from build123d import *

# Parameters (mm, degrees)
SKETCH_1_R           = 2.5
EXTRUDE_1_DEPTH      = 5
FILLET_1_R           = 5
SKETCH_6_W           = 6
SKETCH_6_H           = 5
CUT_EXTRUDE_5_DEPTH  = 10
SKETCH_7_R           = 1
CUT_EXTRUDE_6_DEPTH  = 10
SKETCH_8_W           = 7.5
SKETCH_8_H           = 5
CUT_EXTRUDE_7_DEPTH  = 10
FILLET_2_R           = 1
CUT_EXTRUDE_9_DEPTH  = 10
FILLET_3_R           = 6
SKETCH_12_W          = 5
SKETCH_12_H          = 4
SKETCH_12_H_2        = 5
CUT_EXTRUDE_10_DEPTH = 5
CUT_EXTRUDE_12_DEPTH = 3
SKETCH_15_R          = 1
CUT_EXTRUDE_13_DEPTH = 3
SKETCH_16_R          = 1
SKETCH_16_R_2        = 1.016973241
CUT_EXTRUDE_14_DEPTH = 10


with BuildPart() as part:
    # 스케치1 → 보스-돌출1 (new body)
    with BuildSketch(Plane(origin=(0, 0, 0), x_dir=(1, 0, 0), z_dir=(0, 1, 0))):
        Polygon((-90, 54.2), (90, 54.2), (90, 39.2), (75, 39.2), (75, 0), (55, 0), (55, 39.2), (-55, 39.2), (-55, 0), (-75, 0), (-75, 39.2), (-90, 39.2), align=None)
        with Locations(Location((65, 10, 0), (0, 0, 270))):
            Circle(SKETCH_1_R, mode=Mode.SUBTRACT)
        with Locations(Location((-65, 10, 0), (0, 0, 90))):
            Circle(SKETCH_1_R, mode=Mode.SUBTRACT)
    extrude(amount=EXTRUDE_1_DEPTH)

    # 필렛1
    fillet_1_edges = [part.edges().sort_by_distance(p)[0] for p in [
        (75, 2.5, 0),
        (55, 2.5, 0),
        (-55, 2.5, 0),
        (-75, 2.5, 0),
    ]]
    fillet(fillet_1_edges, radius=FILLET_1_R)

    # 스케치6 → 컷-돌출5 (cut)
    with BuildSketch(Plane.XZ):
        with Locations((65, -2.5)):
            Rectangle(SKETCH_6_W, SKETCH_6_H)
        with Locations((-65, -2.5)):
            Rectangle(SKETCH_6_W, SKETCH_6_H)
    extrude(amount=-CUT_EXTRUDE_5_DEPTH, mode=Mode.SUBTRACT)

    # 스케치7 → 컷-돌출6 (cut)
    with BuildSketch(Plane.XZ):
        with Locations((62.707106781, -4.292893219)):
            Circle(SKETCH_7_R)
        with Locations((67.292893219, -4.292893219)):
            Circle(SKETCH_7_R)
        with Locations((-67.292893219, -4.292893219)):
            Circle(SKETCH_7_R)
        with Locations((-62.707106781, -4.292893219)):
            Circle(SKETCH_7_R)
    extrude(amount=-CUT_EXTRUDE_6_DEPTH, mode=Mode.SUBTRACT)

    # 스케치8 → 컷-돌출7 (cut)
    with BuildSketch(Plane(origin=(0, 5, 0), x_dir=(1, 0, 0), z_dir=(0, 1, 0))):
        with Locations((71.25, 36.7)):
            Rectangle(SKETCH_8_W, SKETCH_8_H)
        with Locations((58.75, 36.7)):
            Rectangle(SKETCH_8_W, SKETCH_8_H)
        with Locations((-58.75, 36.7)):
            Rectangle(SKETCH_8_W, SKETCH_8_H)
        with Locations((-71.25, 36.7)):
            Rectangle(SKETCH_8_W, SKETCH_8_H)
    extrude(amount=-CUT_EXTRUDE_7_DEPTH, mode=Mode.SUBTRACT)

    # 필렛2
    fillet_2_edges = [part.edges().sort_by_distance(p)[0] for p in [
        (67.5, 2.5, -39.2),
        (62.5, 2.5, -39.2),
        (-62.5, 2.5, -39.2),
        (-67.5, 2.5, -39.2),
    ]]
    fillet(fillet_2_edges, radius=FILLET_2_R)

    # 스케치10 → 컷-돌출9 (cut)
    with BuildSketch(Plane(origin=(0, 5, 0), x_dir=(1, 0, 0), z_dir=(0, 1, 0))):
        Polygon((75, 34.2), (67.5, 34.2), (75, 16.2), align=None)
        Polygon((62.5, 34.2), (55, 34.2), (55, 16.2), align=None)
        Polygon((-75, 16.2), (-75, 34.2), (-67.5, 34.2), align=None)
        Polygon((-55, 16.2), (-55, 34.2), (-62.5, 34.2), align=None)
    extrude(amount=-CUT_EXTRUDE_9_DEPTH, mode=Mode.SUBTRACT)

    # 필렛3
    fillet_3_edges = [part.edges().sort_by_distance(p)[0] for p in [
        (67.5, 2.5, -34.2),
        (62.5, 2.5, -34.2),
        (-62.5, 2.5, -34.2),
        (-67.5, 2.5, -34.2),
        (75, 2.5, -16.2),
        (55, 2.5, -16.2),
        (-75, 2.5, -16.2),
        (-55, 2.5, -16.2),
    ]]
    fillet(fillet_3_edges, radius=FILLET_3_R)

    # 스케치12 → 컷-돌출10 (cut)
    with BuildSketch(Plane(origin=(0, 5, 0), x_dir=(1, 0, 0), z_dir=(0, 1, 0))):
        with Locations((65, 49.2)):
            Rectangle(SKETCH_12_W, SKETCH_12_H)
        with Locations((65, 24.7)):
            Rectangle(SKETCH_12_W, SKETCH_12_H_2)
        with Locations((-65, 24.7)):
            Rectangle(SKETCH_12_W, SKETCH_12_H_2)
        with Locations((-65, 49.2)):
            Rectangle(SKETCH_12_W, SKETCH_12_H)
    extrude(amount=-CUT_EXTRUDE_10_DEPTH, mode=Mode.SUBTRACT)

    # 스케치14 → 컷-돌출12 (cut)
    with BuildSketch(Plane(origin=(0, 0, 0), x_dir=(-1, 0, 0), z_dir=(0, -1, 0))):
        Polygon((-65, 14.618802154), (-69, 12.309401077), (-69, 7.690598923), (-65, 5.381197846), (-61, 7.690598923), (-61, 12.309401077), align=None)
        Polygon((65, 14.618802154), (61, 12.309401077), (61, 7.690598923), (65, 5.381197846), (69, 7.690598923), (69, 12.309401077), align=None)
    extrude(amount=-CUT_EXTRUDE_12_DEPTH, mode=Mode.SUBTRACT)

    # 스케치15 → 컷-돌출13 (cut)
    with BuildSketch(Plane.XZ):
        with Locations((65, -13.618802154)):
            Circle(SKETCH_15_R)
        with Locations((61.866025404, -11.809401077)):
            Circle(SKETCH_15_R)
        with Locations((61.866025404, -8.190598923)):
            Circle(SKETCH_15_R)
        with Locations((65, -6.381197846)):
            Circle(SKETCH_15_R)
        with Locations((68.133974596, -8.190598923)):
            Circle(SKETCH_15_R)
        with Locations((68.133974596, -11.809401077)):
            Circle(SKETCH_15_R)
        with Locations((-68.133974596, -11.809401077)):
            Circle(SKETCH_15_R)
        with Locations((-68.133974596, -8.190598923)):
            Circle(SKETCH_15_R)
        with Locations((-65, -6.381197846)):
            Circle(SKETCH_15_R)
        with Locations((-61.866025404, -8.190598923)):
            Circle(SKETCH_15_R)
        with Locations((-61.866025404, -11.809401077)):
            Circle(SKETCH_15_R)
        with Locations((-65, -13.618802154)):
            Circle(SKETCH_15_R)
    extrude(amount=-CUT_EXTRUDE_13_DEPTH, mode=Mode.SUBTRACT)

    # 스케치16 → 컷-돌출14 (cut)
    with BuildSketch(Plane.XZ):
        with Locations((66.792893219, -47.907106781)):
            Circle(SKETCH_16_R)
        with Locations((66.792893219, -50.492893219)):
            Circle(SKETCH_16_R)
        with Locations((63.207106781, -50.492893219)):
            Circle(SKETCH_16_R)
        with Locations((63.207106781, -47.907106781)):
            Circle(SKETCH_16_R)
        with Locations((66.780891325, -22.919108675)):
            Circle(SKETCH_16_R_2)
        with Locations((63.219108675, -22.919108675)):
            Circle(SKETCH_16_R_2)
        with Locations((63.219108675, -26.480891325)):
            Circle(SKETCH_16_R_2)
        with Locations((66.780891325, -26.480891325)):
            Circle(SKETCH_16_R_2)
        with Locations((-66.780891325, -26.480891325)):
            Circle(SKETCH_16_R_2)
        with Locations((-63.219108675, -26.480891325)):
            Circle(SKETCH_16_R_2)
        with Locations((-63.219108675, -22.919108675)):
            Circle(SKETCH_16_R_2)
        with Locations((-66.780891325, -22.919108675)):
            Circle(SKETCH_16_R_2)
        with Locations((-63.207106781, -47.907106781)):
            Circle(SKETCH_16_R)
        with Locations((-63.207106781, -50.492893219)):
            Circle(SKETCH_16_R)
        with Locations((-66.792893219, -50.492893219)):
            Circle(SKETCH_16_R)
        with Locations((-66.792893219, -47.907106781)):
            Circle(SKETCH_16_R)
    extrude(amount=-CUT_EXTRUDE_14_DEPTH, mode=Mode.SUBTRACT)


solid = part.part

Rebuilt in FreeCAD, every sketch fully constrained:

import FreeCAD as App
import Part
import Sketcher

V = App.Vector
Q = App.Units.Quantity


def edges_at(feature, points):
    """Names of the edges that pass closest to the given points."""
    edges = feature.Shape.Edges
    near = lambda p: min(range(len(edges)), key=lambda i: edges[i].distToShape(Part.Vertex(*p))[0])
    return sorted({f"Edge{near(p) + 1}" for p in points})


def add_polygon(sketch, points):
    """Adds a closed chain of lines whose ends are joined by coincident constraints."""
    first, n = sketch.GeometryCount, len(points)
    for a, b in zip(points, points[1:] + points[:1]):
        sketch.addGeometry(Part.LineSegment(App.Vector(*a, 0), App.Vector(*b, 0)), False)
    for i in range(n):
        sketch.addConstraint(Sketcher.Constraint("Coincident", first + i, 2, first + (i + 1) % n, 1))

doc = App.newDocument("Part")
body = doc.addObject("PartDesign::Body", "Body")

# Sketch on XZ plane
sketch1 = doc.addObject("Sketcher::SketchObject", "Sketch")
body.addObject(sketch1)
sketch1.AttachmentSupport = (doc.XZ_Plane, [""])
sketch1.MapMode = "FlatFace"
add_polygon(sketch1, [(90, -54.2), (-90, -54.2), (-90, -39.2), (-75, -39.2), (-75, 0), (-55, 0), (-55, -39.2), (55, -39.2), (55, 0), (75, 0), (75, -39.2), (90, -39.2)])  # lines 0-11
sketch1.addGeometry(Part.Circle(V(65, -10, 0), V(0, 0, 1), 2.5), False)  # 12
sketch1.addGeometry(Part.Circle(V(-65, -10, 0), V(0, 0, 1), 2.5), False)  # 13
sketch1.addConstraint(Sketcher.Constraint("Horizontal", 0))
sketch1.addConstraint(Sketcher.Constraint("Vertical", 1))
sketch1.addConstraint(Sketcher.Constraint("Horizontal", 2))
sketch1.addConstraint(Sketcher.Constraint("Vertical", 3))
sketch1.addConstraint(Sketcher.Constraint("Horizontal", 4))
sketch1.addConstraint(Sketcher.Constraint("Vertical", 5))
sketch1.addConstraint(Sketcher.Constraint("Horizontal", 6))
sketch1.addConstraint(Sketcher.Constraint("Vertical", 7))
sketch1.addConstraint(Sketcher.Constraint("Horizontal", 8))
sketch1.addConstraint(Sketcher.Constraint("Vertical", 9))
sketch1.addConstraint(Sketcher.Constraint("Horizontal", 10))
sketch1.addConstraint(Sketcher.Constraint("Vertical", 11))
sketch1.addConstraint(Sketcher.Constraint("Equal", 12, 13))
sketch1.addConstraint(Sketcher.Constraint("Symmetric", 4, 2, 7, 2, -1, 1))
sketch1.addConstraint(Sketcher.Constraint("Symmetric", 12, 3, 13, 3, -2))
sketch1.addConstraint(Sketcher.Constraint("Symmetric", 3, 2, 8, 2, -2))
sketch1.addConstraint(Sketcher.Constraint("Symmetric", 1, 2, 10, 2, -2))
sketch1.addConstraint(Sketcher.Constraint("Horizontal", 2, 2, 5, 2))
sketch1.addConstraint(Sketcher.Constraint("Equal", 10, 1))
sketch1.addConstraint(Sketcher.Constraint("Diameter", 12, 5.0))
sketch1.addConstraint(Sketcher.Constraint("DistanceX", 0, 2, 0, 1, 180.0))
sketch1.addConstraint(Sketcher.Constraint("DistanceX", 2, 1, 2, 2, 15.0))
sketch1.addConstraint(Sketcher.Constraint("DistanceX", 4, 1, 4, 2, 20.0))
sketch1.addConstraint(Sketcher.Constraint("DistanceY", 3, 1, 3, 2, 39.2))
sketch1.addConstraint(Sketcher.Constraint("DistanceX", -1, 1, 12, 3, 65.0))
sketch1.addConstraint(Sketcher.Constraint("DistanceY", 12, 3, -1, 1, 10.0))
pad1 = doc.addObject("PartDesign::Pad", "Pad")
body.addObject(pad1)
pad1.Profile = sketch1
pad1.Length = 5
pad1.Reversed = True
doc.recompute()

fillet = doc.addObject("PartDesign::Fillet", "Fillet")
body.addObject(fillet)
fillet.Base = (pad1, edges_at(pad1, [
    (75, 2.5, 0),
    (55, 2.5, 0),
    (-55, 2.5, 0),
    (-75, 2.5, 0),
]))
fillet.Radius = 5

# Sketch on XZ plane
sketch2 = doc.addObject("Sketcher::SketchObject", "Sketch001")
body.addObject(sketch2)
sketch2.AttachmentSupport = (doc.XZ_Plane, [""])
sketch2.MapMode = "FlatFace"
add_polygon(sketch2, [(62, 0), (62, -5), (68, -5), (68, 0)])  # lines 0-3
add_polygon(sketch2, [(-68, 0), (-68, -5), (-62, -5), (-62, 0)])  # lines 4-7
sketch2.addConstraint(Sketcher.Constraint("Vertical", 0))
sketch2.addConstraint(Sketcher.Constraint("Horizontal", 1))
sketch2.addConstraint(Sketcher.Constraint("Vertical", 2))
sketch2.addConstraint(Sketcher.Constraint("Horizontal", 3))
sketch2.addConstraint(Sketcher.Constraint("Vertical", 4))
sketch2.addConstraint(Sketcher.Constraint("Horizontal", 5))
sketch2.addConstraint(Sketcher.Constraint("Vertical", 6))
sketch2.addConstraint(Sketcher.Constraint("Horizontal", 7))
sketch2.addConstraint(Sketcher.Constraint("Symmetric", 3, 2, 6, 2, -1, 1))
sketch2.addConstraint(Sketcher.Constraint("Symmetric", 1, 2, 4, 2, -2))
sketch2.addConstraint(Sketcher.Constraint("PointOnObject", 2, 2, -1))
sketch2.addConstraint(Sketcher.Constraint("DistanceX", 1, 1, 1, 2, 6.0))
sketch2.addConstraint(Sketcher.Constraint("DistanceY", 0, 2, 0, 1, 5.0))
sketch2.addConstraint(Sketcher.Constraint("DistanceX", -1, 1, 0, 2, 62.0))
pocket1 = doc.addObject("PartDesign::Pocket", "Pocket")
body.addObject(pocket1)
pocket1.Profile = sketch2
pocket1.Length = 10

# Sketch on XZ plane
sketch3 = doc.addObject("Sketcher::SketchObject", "Sketch002")
body.addObject(sketch3)
sketch3.AttachmentSupport = (doc.XZ_Plane, [""])
sketch3.MapMode = "FlatFace"
sketch3.addGeometry(Part.Circle(V(62.707107, -4.292893, 0), V(0, 0, 1), 1), False)
sketch3.addGeometry(Part.Circle(V(67.292893, -4.292893, 0), V(0, 0, 1), 1), False)
sketch3.addGeometry(Part.Circle(V(-67.292893, -4.292893, 0), V(0, 0, 1), 1), False)
sketch3.addGeometry(Part.Circle(V(-62.707107, -4.292893, 0), V(0, 0, 1), 1), False)
sketch3.addConstraint(Sketcher.Constraint("Equal", 0, 1))
sketch3.addConstraint(Sketcher.Constraint("Equal", 1, 2))
sketch3.addConstraint(Sketcher.Constraint("Equal", 2, 3))
sketch3.addConstraint(Sketcher.Constraint("Symmetric", 1, 3, 2, 3, -2))
sketch3.addConstraint(Sketcher.Constraint("Symmetric", 0, 3, 3, 3, -2))
sketch3.addConstraint(Sketcher.Constraint("Horizontal", 0, 3, 1, 3))
sketch3.addConstraint(Sketcher.Constraint("Diameter", 0, 2.0))
sketch3.addConstraint(Sketcher.Constraint("DistanceX", 2, 3, 0, 3, 130.0))
sketch3.addConstraint(Sketcher.Constraint("DistanceX", -1, 1, 0, 3, 62.707107))
sketch3.addConstraint(Sketcher.Constraint("DistanceY", 0, 3, -1, 1, 4.292893))
pocket2 = doc.addObject("PartDesign::Pocket", "Pocket001")
body.addObject(pocket2)
pocket2.Profile = sketch3
pocket2.Length = 10

# Sketch on XZ plane
sketch4 = doc.addObject("Sketcher::SketchObject", "Sketch003")
body.addObject(sketch4)
sketch4.AttachmentSupport = (doc.XZ_Plane, [""])
sketch4.MapMode = "FlatFace"
sketch4.AttachmentOffset = App.Placement(V(0, 0, -5), App.Rotation())
add_polygon(sketch4, [(67.5, -39.2), (67.5, -34.2), (75, -34.2), (75, -39.2)])  # lines 0-3
add_polygon(sketch4, [(55, -39.2), (55, -34.2), (62.5, -34.2), (62.5, -39.2)])  # lines 4-7
add_polygon(sketch4, [(-62.5, -39.2), (-62.5, -34.2), (-55, -34.2), (-55, -39.2)])  # lines 8-11
add_polygon(sketch4, [(-75, -39.2), (-75, -34.2), (-67.5, -34.2), (-67.5, -39.2)])  # lines 12-15
sketch4.addConstraint(Sketcher.Constraint("Vertical", 0))
sketch4.addConstraint(Sketcher.Constraint("Horizontal", 1))
sketch4.addConstraint(Sketcher.Constraint("Vertical", 2))
sketch4.addConstraint(Sketcher.Constraint("Horizontal", 3))
sketch4.addConstraint(Sketcher.Constraint("Vertical", 4))
sketch4.addConstraint(Sketcher.Constraint("Horizontal", 5))
sketch4.addConstraint(Sketcher.Constraint("Vertical", 6))
sketch4.addConstraint(Sketcher.Constraint("Horizontal", 7))
sketch4.addConstraint(Sketcher.Constraint("Vertical", 8))
sketch4.addConstraint(Sketcher.Constraint("Horizontal", 9))
sketch4.addConstraint(Sketcher.Constraint("Vertical", 10))
sketch4.addConstraint(Sketcher.Constraint("Horizontal", 11))
sketch4.addConstraint(Sketcher.Constraint("Vertical", 12))
sketch4.addConstraint(Sketcher.Constraint("Horizontal", 13))
sketch4.addConstraint(Sketcher.Constraint("Vertical", 14))
sketch4.addConstraint(Sketcher.Constraint("Horizontal", 15))
sketch4.addConstraint(Sketcher.Constraint("Symmetric", 5, 2, 8, 2, -2))
sketch4.addConstraint(Sketcher.Constraint("Symmetric", 7, 2, 10, 2, -2))
sketch4.addConstraint(Sketcher.Constraint("Symmetric", 1, 2, 12, 2, -2))
sketch4.addConstraint(Sketcher.Constraint("Symmetric", 3, 2, 14, 2, -2))
sketch4.addConstraint(Sketcher.Constraint("Horizontal", 1, 2, 4, 2))
sketch4.addConstraint(Sketcher.Constraint("Horizontal", 3, 2, 6, 2))
sketch4.addConstraint(Sketcher.Constraint("Equal", 3, 5))
sketch4.addConstraint(Sketcher.Constraint("DistanceY", 0, 1, 0, 2, 5.0))
sketch4.addConstraint(Sketcher.Constraint("DistanceX", 1, 1, 1, 2, 7.5))
sketch4.addConstraint(Sketcher.Constraint("DistanceX", -1, 1, 1, 2, 75.0))
sketch4.addConstraint(Sketcher.Constraint("DistanceX", -1, 1, 4, 2, 55.0))
sketch4.addConstraint(Sketcher.Constraint("DistanceY", 0, 2, -1, 1, 34.2))
pocket3 = doc.addObject("PartDesign::Pocket", "Pocket002")
body.addObject(pocket3)
pocket3.Profile = sketch4
pocket3.Length = 10
pocket3.Reversed = True
doc.recompute()

fillet2 = doc.addObject("PartDesign::Fillet", "Fillet001")
body.addObject(fillet2)
fillet2.Base = (pocket3, edges_at(pocket3, [
    (67.5, 2.5, -39.2),
    (62.5, 2.5, -39.2),
    (-62.5, 2.5, -39.2),
    (-67.5, 2.5, -39.2),
]))
fillet2.Radius = 1

# Sketch on XZ plane
sketch5 = doc.addObject("Sketcher::SketchObject", "Sketch004")
body.addObject(sketch5)
sketch5.AttachmentSupport = (doc.XZ_Plane, [""])
sketch5.MapMode = "FlatFace"
sketch5.AttachmentOffset = App.Placement(V(0, 0, -5), App.Rotation())
add_polygon(sketch5, [(75, -34.2), (67.5, -34.2), (75, -16.2)])  # lines 0-2
add_polygon(sketch5, [(62.5, -34.2), (55, -34.2), (55, -16.2)])  # lines 3-5
add_polygon(sketch5, [(-75, -34.2), (-75, -16.2), (-67.5, -34.2)])  # lines 6-8
add_polygon(sketch5, [(-55, -16.2), (-55, -34.2), (-62.5, -34.2)])  # lines 9-11
sketch5.addConstraint(Sketcher.Constraint("Horizontal", 0))
sketch5.addConstraint(Sketcher.Constraint("Vertical", 2))
sketch5.addConstraint(Sketcher.Constraint("Horizontal", 3))
sketch5.addConstraint(Sketcher.Constraint("Vertical", 4))
sketch5.addConstraint(Sketcher.Constraint("Vertical", 6))
sketch5.addConstraint(Sketcher.Constraint("Horizontal", 8))
sketch5.addConstraint(Sketcher.Constraint("Vertical", 9))
sketch5.addConstraint(Sketcher.Constraint("Horizontal", 10))
sketch5.addConstraint(Sketcher.Constraint("Symmetric", 1, 2, 6, 2, -2))
sketch5.addConstraint(Sketcher.Constraint("Symmetric", 0, 2, 7, 2, -2))
sketch5.addConstraint(Sketcher.Constraint("Symmetric", 3, 2, 9, 2, -2))
sketch5.addConstraint(Sketcher.Constraint("Parallel", 5, 7))
sketch5.addConstraint(Sketcher.Constraint("Parallel", 1, 11))
sketch5.addConstraint(Sketcher.Constraint("Horizontal", 2, 2, 3, 2))
sketch5.addConstraint(Sketcher.Constraint("Horizontal", 1, 2, 4, 2))
sketch5.addConstraint(Sketcher.Constraint("Horizontal", 6, 2, 11, 2))
sketch5.addConstraint(Sketcher.Constraint("DistanceY", 2, 2, 2, 1, 18.0))
sketch5.addConstraint(Sketcher.Constraint("DistanceX", 0, 2, 0, 1, 7.5))
sketch5.addConstraint(Sketcher.Constraint("DistanceX", -1, 1, 1, 2, 75.0))
sketch5.addConstraint(Sketcher.Constraint("DistanceX", -1, 1, 3, 2, 55.0))
sketch5.addConstraint(Sketcher.Constraint("DistanceY", 0, 2, -1, 1, 34.2))
pocket4 = doc.addObject("PartDesign::Pocket", "Pocket003")
body.addObject(pocket4)
pocket4.Profile = sketch5
pocket4.Length = 10
pocket4.Reversed = True
doc.recompute()

fillet3 = doc.addObject("PartDesign::Fillet", "Fillet002")
body.addObject(fillet3)
fillet3.Base = (pocket4, edges_at(pocket4, [
    (67.5, 2.5, -34.2),
    (62.5, 2.5, -34.2),
    (-62.5, 2.5, -34.2),
    (-67.5, 2.5, -34.2),
    (75, 2.5, -16.2),
    (55, 2.5, -16.2),
    (-75, 2.5, -16.2),
    (-55, 2.5, -16.2),
]))
fillet3.Radius = 6

# Sketch on XZ plane
sketch6 = doc.addObject("Sketcher::SketchObject", "Sketch005")
body.addObject(sketch6)
sketch6.AttachmentSupport = (doc.XZ_Plane, [""])
sketch6.MapMode = "FlatFace"
sketch6.AttachmentOffset = App.Placement(V(0, 0, -5), App.Rotation())
add_polygon(sketch6, [(62.5, -51.2), (62.5, -47.2), (67.5, -47.2), (67.5, -51.2)])  # lines 0-3
add_polygon(sketch6, [(62.5, -27.2), (62.5, -22.2), (67.5, -22.2), (67.5, -27.2)])  # lines 4-7
add_polygon(sketch6, [(-67.5, -27.2), (-67.5, -22.2), (-62.5, -22.2), (-62.5, -27.2)])  # lines 8-11
add_polygon(sketch6, [(-67.5, -51.2), (-67.5, -47.2), (-62.5, -47.2), (-62.5, -51.2)])  # lines 12-15
sketch6.addConstraint(Sketcher.Constraint("Vertical", 0))
sketch6.addConstraint(Sketcher.Constraint("Horizontal", 1))
sketch6.addConstraint(Sketcher.Constraint("Vertical", 2))
sketch6.addConstraint(Sketcher.Constraint("Horizontal", 3))
sketch6.addConstraint(Sketcher.Constraint("Vertical", 4))
sketch6.addConstraint(Sketcher.Constraint("Horizontal", 5))
sketch6.addConstraint(Sketcher.Constraint("Vertical", 6))
sketch6.addConstraint(Sketcher.Constraint("Horizontal", 7))
sketch6.addConstraint(Sketcher.Constraint("Vertical", 8))
sketch6.addConstraint(Sketcher.Constraint("Horizontal", 9))
sketch6.addConstraint(Sketcher.Constraint("Vertical", 10))
sketch6.addConstraint(Sketcher.Constraint("Horizontal", 11))
sketch6.addConstraint(Sketcher.Constraint("Vertical", 12))
sketch6.addConstraint(Sketcher.Constraint("Horizontal", 13))
sketch6.addConstraint(Sketcher.Constraint("Vertical", 14))
sketch6.addConstraint(Sketcher.Constraint("Horizontal", 15))
sketch6.addConstraint(Sketcher.Constraint("Symmetric", 5, 2, 8, 2, -2))
sketch6.addConstraint(Sketcher.Constraint("Symmetric", 7, 2, 10, 2, -2))
sketch6.addConstraint(Sketcher.Constraint("Symmetric", 1, 2, 12, 2, -2))
sketch6.addConstraint(Sketcher.Constraint("Symmetric", 3, 2, 14, 2, -2))
sketch6.addConstraint(Sketcher.Constraint("Vertical", 3, 2, 4, 2))
sketch6.addConstraint(Sketcher.Constraint("Vertical", 2, 2, 5, 2))
sketch6.addConstraint(Sketcher.Constraint("Equal", 15, 4))
sketch6.addConstraint(Sketcher.Constraint("DistanceX", 1, 1, 1, 2, 5.0))
sketch6.addConstraint(Sketcher.Constraint("DistanceY", 0, 1, 0, 2, 4.0))
sketch6.addConstraint(Sketcher.Constraint("DistanceY", 0, 2, 4, 2, 25.0))
sketch6.addConstraint(Sketcher.Constraint("DistanceX", 8, 2, 4, 2, 130.0))
sketch6.addConstraint(Sketcher.Constraint("DistanceY", 0, 2, -1, 1, 47.2))
pocket5 = doc.addObject("PartDesign::Pocket", "Pocket004")
body.addObject(pocket5)
pocket5.Profile = sketch6
pocket5.Length = 5
pocket5.Reversed = True

# Sketch on XZ plane
sketch7 = doc.addObject("Sketcher::SketchObject", "Sketch006")
body.addObject(sketch7)
sketch7.AttachmentSupport = (doc.XZ_Plane, [""])
sketch7.MapMode = "FlatFace"
add_polygon(sketch7, [(65, -14.618802), (69, -12.309401), (69, -7.690599), (65, -5.381198), (61, -7.690599), (61, -12.309401)])  # lines 0-5
add_polygon(sketch7, [(-65, -14.618802), (-61, -12.309401), (-61, -7.690599), (-65, -5.381198), (-69, -7.690599), (-69, -12.309401)])  # lines 6-11
sketch7.addConstraint(Sketcher.Constraint("Vertical", 1))
sketch7.addConstraint(Sketcher.Constraint("Vertical", 4))
sketch7.addConstraint(Sketcher.Constraint("Vertical", 7))
sketch7.addConstraint(Sketcher.Constraint("Vertical", 10))
sketch7.addConstraint(Sketcher.Constraint("Symmetric", 4, 2, 6, 2, -2))
sketch7.addConstraint(Sketcher.Constraint("Symmetric", 2, 2, 8, 2, -2))
sketch7.addConstraint(Sketcher.Constraint("Symmetric", 1, 2, 9, 2, -2))
sketch7.addConstraint(Sketcher.Constraint("Symmetric", 5, 2, 11, 2, -2))
sketch7.addConstraint(Sketcher.Constraint("Parallel", 0, 3))
sketch7.addConstraint(Sketcher.Constraint("Parallel", 2, 5))
sketch7.addConstraint(Sketcher.Constraint("Parallel", 3, 6))
sketch7.addConstraint(Sketcher.Constraint("Parallel", 5, 8))
sketch7.addConstraint(Sketcher.Constraint("Parallel", 8, 11))
sketch7.addConstraint(Sketcher.Constraint("Horizontal", 1, 2, 3, 2))
sketch7.addConstraint(Sketcher.Constraint("Horizontal", 0, 2, 4, 2))
sketch7.addConstraint(Sketcher.Constraint("Angle", 0, Q("30 deg")))
sketch7.addConstraint(Sketcher.Constraint("DistanceX", -1, 1, 0, 2, 69.0))
sketch7.addConstraint(Sketcher.Constraint("DistanceX", -1, 1, 2, 2, 65.0))
sketch7.addConstraint(Sketcher.Constraint("DistanceY", 0, 2, -1, 1, 12.309401))
sketch7.addConstraint(Sketcher.Constraint("DistanceY", 1, 2, -1, 1, 7.690599))
pocket6 = doc.addObject("PartDesign::Pocket", "Pocket005")
body.addObject(pocket6)
pocket6.Profile = sketch7
pocket6.Length = 3

# Sketch on XZ plane
sketch8 = doc.addObject("Sketcher::SketchObject", "Sketch007")
body.addObject(sketch8)
sketch8.AttachmentSupport = (doc.XZ_Plane, [""])
sketch8.MapMode = "FlatFace"
sketch8.addGeometry(Part.Circle(V(65, -13.618802, 0), V(0, 0, 1), 1), False)
sketch8.addGeometry(Part.Circle(V(61.866025, -11.809401, 0), V(0, 0, 1), 1), False)
sketch8.addGeometry(Part.Circle(V(61.866025, -8.190599, 0), V(0, 0, 1), 1), False)
sketch8.addGeometry(Part.Circle(V(65, -6.381198, 0), V(0, 0, 1), 1), False)
sketch8.addGeometry(Part.Circle(V(68.133975, -8.190599, 0), V(0, 0, 1), 1), False)
sketch8.addGeometry(Part.Circle(V(68.133975, -11.809401, 0), V(0, 0, 1), 1), False)
sketch8.addGeometry(Part.Circle(V(-68.133975, -11.809401, 0), V(0, 0, 1), 1), False)
sketch8.addGeometry(Part.Circle(V(-68.133975, -8.190599, 0), V(0, 0, 1), 1), False)
sketch8.addGeometry(Part.Circle(V(-65, -6.381198, 0), V(0, 0, 1), 1), False)
sketch8.addGeometry(Part.Circle(V(-61.866025, -8.190599, 0), V(0, 0, 1), 1), False)
sketch8.addGeometry(Part.Circle(V(-61.866025, -11.809401, 0), V(0, 0, 1), 1), False)
sketch8.addGeometry(Part.Circle(V(-65, -13.618802, 0), V(0, 0, 1), 1), False)
sketch8.addConstraint(Sketcher.Constraint("Equal", 0, 1))
sketch8.addConstraint(Sketcher.Constraint("Equal", 1, 2))
sketch8.addConstraint(Sketcher.Constraint("Equal", 2, 3))
sketch8.addConstraint(Sketcher.Constraint("Equal", 3, 4))
sketch8.addConstraint(Sketcher.Constraint("Equal", 4, 5))
sketch8.addConstraint(Sketcher.Constraint("Equal", 5, 6))
sketch8.addConstraint(Sketcher.Constraint("Equal", 6, 7))
sketch8.addConstraint(Sketcher.Constraint("Equal", 7, 8))
sketch8.addConstraint(Sketcher.Constraint("Equal", 8, 9))
sketch8.addConstraint(Sketcher.Constraint("Equal", 9, 10))
sketch8.addConstraint(Sketcher.Constraint("Equal", 10, 11))
sketch8.addConstraint(Sketcher.Constraint("Symmetric", 5, 3, 6, 3, -2))
sketch8.addConstraint(Sketcher.Constraint("Symmetric", 4, 3, 7, 3, -2))
sketch8.addConstraint(Sketcher.Constraint("Symmetric", 3, 3, 8, 3, -2))
sketch8.addConstraint(Sketcher.Constraint("Symmetric", 2, 3, 9, 3, -2))
sketch8.addConstraint(Sketcher.Constraint("Symmetric", 1, 3, 10, 3, -2))
sketch8.addConstraint(Sketcher.Constraint("Symmetric", 0, 3, 11, 3, -2))
sketch8.addConstraint(Sketcher.Constraint("Horizontal", 2, 3, 4, 3))
sketch8.addConstraint(Sketcher.Constraint("Horizontal", 1, 3, 5, 3))
sketch8.addConstraint(Sketcher.Constraint("Vertical", 1, 3, 2, 3))
sketch8.addConstraint(Sketcher.Constraint("Vertical", 0, 3, 3, 3))
sketch8.addConstraint(Sketcher.Constraint("Vertical", 4, 3, 5, 3))
sketch8.addConstraint(Sketcher.Constraint("Diameter", 0, 2.0))
sketch8.addConstraint(Sketcher.Constraint("DistanceX", -1, 1, 0, 3, 65.0))
sketch8.addConstraint(Sketcher.Constraint("DistanceX", 6, 3, 1, 3, 130.0))
sketch8.addConstraint(Sketcher.Constraint("DistanceY", 1, 3, -1, 1, 11.809401))
sketch8.addConstraint(Sketcher.Constraint("DistanceY", 2, 3, -1, 1, 8.190599))
sketch8.addConstraint(Sketcher.Constraint("DistanceY", 0, 3, 1, 3, 1.809401))
sketch8.addConstraint(Sketcher.Constraint("DistanceY", 2, 3, 3, 3, 1.809401))
sketch8.addConstraint(Sketcher.Constraint("DistanceX", 2, 3, 4, 3, 6.267949))
pocket7 = doc.addObject("PartDesign::Pocket", "Pocket006")
body.addObject(pocket7)
pocket7.Profile = sketch8
pocket7.Length = 3

# Sketch on XZ plane
sketch9 = doc.addObject("Sketcher::SketchObject", "Sketch008")
body.addObject(sketch9)
sketch9.AttachmentSupport = (doc.XZ_Plane, [""])
sketch9.MapMode = "FlatFace"
sketch9.addGeometry(Part.Circle(V(66.792893, -47.907107, 0), V(0, 0, 1), 1), False)
sketch9.addGeometry(Part.Circle(V(66.792893, -50.492893, 0), V(0, 0, 1), 1), False)
sketch9.addGeometry(Part.Circle(V(63.207107, -50.492893, 0), V(0, 0, 1), 1), False)
sketch9.addGeometry(Part.Circle(V(63.207107, -47.907107, 0), V(0, 0, 1), 1), False)
sketch9.addGeometry(Part.Circle(V(66.780891, -22.919109, 0), V(0, 0, 1), 1.016973), False)
sketch9.addGeometry(Part.Circle(V(63.219109, -22.919109, 0), V(0, 0, 1), 1.016973), False)
sketch9.addGeometry(Part.Circle(V(63.219109, -26.480891, 0), V(0, 0, 1), 1.016973), False)
sketch9.addGeometry(Part.Circle(V(66.780891, -26.480891, 0), V(0, 0, 1), 1.016973), False)
sketch9.addGeometry(Part.Circle(V(-66.780891, -26.480891, 0), V(0, 0, 1), 1.016973), False)
sketch9.addGeometry(Part.Circle(V(-63.219109, -26.480891, 0), V(0, 0, 1), 1.016973), False)
sketch9.addGeometry(Part.Circle(V(-63.219109, -22.919109, 0), V(0, 0, 1), 1.016973), False)
sketch9.addGeometry(Part.Circle(V(-66.780891, -22.919109, 0), V(0, 0, 1), 1.016973), False)
sketch9.addGeometry(Part.Circle(V(-63.207107, -47.907107, 0), V(0, 0, 1), 1), False)
sketch9.addGeometry(Part.Circle(V(-63.207107, -50.492893, 0), V(0, 0, 1), 1), False)
sketch9.addGeometry(Part.Circle(V(-66.792893, -50.492893, 0), V(0, 0, 1), 1), False)
sketch9.addGeometry(Part.Circle(V(-66.792893, -47.907107, 0), V(0, 0, 1), 1), False)
sketch9.addConstraint(Sketcher.Constraint("Equal", 0, 1))
sketch9.addConstraint(Sketcher.Constraint("Equal", 1, 2))
sketch9.addConstraint(Sketcher.Constraint("Equal", 2, 3))
sketch9.addConstraint(Sketcher.Constraint("Equal", 4, 5))
sketch9.addConstraint(Sketcher.Constraint("Equal", 5, 6))
sketch9.addConstraint(Sketcher.Constraint("Equal", 6, 7))
sketch9.addConstraint(Sketcher.Constraint("Equal", 7, 8))
sketch9.addConstraint(Sketcher.Constraint("Equal", 8, 9))
sketch9.addConstraint(Sketcher.Constraint("Equal", 9, 10))
sketch9.addConstraint(Sketcher.Constraint("Equal", 10, 11))
sketch9.addConstraint(Sketcher.Constraint("Equal", 3, 12))
sketch9.addConstraint(Sketcher.Constraint("Equal", 12, 13))
sketch9.addConstraint(Sketcher.Constraint("Equal", 13, 14))
sketch9.addConstraint(Sketcher.Constraint("Equal", 14, 15))
sketch9.addConstraint(Sketcher.Constraint("Symmetric", 7, 3, 8, 3, -2))
sketch9.addConstraint(Sketcher.Constraint("Symmetric", 6, 3, 9, 3, -2))
sketch9.addConstraint(Sketcher.Constraint("Symmetric", 5, 3, 10, 3, -2))
sketch9.addConstraint(Sketcher.Constraint("Symmetric", 4, 3, 11, 3, -2))
sketch9.addConstraint(Sketcher.Constraint("Symmetric", 3, 3, 12, 3, -2))
sketch9.addConstraint(Sketcher.Constraint("Symmetric", 2, 3, 13, 3, -2))
sketch9.addConstraint(Sketcher.Constraint("Symmetric", 1, 3, 14, 3, -2))
sketch9.addConstraint(Sketcher.Constraint("Symmetric", 0, 3, 15, 3, -2))
sketch9.addConstraint(Sketcher.Constraint("Horizontal", 1, 3, 2, 3))
sketch9.addConstraint(Sketcher.Constraint("Horizontal", 0, 3, 3, 3))
sketch9.addConstraint(Sketcher.Constraint("Horizontal", 4, 3, 5, 3))
sketch9.addConstraint(Sketcher.Constraint("Horizontal", 6, 3, 7, 3))
sketch9.addConstraint(Sketcher.Constraint("Vertical", 0, 3, 1, 3))
sketch9.addConstraint(Sketcher.Constraint("Vertical", 2, 3, 3, 3))
sketch9.addConstraint(Sketcher.Constraint("Vertical", 5, 3, 6, 3))
sketch9.addConstraint(Sketcher.Constraint("Vertical", 4, 3, 7, 3))
sketch9.addConstraint(Sketcher.Constraint("Diameter", 0, 2.0))
sketch9.addConstraint(Sketcher.Constraint("DistanceX", 8, 3, 6, 3, 130.0))
sketch9.addConstraint(Sketcher.Constraint("Diameter", 4, 2.033946))
sketch9.addConstraint(Sketcher.Constraint("DistanceX", 4, 3, 0, 3, 0.012002))
sketch9.addConstraint(Sketcher.Constraint("DistanceY", 0, 3, 4, 3, 24.987998))
sketch9.addConstraint(Sketcher.Constraint("DistanceX", 3, 3, 5, 3, 0.012002))
sketch9.addConstraint(Sketcher.Constraint("DistanceY", 2, 3, 6, 3, 24.012002))
sketch9.addConstraint(Sketcher.Constraint("DistanceX", -1, 1, 4, 3, 66.780891))
sketch9.addConstraint(Sketcher.Constraint("DistanceY", 4, 3, -1, 1, 22.919109))
sketch9.addConstraint(Sketcher.Constraint("DistanceY", 6, 3, -1, 1, 26.480891))
pocket8 = doc.addObject("PartDesign::Pocket", "Pocket007")
body.addObject(pocket8)
pocket8.Profile = sketch9
pocket8.Length = 10

doc.recompute()
